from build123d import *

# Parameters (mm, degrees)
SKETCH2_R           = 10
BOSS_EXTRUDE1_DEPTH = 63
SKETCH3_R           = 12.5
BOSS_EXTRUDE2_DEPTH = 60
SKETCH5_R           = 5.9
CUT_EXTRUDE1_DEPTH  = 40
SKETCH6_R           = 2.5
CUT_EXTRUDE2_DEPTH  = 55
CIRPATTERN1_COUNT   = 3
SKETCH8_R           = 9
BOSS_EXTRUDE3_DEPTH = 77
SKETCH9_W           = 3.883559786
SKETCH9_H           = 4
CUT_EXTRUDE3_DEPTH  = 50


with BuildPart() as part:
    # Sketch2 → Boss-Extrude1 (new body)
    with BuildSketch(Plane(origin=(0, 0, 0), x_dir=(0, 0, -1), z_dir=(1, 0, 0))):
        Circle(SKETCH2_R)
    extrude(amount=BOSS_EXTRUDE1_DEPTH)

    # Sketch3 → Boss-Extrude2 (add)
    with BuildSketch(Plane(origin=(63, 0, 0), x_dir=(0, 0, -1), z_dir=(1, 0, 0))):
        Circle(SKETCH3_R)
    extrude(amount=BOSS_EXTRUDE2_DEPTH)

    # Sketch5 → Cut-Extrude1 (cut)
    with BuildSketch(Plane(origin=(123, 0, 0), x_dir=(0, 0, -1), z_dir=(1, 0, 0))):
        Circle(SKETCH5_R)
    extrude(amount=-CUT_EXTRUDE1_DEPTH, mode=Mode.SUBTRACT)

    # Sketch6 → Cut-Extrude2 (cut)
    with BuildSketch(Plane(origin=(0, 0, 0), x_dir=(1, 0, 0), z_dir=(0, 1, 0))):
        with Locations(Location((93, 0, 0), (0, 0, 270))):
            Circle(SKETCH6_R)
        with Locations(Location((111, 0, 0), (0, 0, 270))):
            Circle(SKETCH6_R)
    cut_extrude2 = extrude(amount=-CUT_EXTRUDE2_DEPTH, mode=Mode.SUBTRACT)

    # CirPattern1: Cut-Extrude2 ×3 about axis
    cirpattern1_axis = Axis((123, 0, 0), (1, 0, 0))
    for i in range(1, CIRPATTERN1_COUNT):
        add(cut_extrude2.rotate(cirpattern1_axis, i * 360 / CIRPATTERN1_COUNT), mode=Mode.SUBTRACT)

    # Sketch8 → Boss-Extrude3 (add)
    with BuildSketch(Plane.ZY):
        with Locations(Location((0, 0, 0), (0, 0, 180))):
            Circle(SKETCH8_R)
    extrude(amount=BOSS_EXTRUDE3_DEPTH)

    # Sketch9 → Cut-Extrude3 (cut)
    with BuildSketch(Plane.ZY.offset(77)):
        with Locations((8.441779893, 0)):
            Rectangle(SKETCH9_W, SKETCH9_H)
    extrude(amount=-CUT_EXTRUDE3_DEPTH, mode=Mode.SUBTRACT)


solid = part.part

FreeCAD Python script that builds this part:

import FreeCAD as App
import Part
import Sketcher

V = App.Vector
Q = App.Units.Quantity


def add_polygon(sketch, points):
    """Adds a closed chain of lines whose ends are joined by coincident constraints."""
    first, n = sketch.GeometryCount, len(points)
    for a, b in zip(points, points[1:] + points[:1]):
        sketch.addGeometry(Part.LineSegment(App.Vector(*a, 0), App.Vector(*b, 0)), False)
    for i in range(n):
        sketch.addConstraint(Sketcher.Constraint("Coincident", first + i, 2, first + (i + 1) % n, 1))

doc = App.newDocument("Part")
params = doc.addObject("Spreadsheet::Sheet", "Params")
for row, (alias, value) in enumerate([
    ("sketch1_diameter", "20 mm"),
    ("pad1_length", "63 mm"),
    ("sketch2_diameter", "25 mm"),
    ("pad2_length", "60 mm"),
    ("sketch3_diameter", "11.8 mm"),
    ("pocket1_length", "40 mm"),
    ("sketch4_diameter", "5 mm"),
    ("pocket2_length", "55 mm"),
    ("sketch5_diameter", "18 mm"),
    ("pad3_length", "77 mm"),
    ("sketch6_width", "4 mm"),
    ("pocket3_length", "50 mm"),
], start=1):
    params.set(f"A{row}", alias)
    params.set(f"B{row}", "=" + value)
    params.setAlias(f"B{row}", alias)

body = doc.addObject("PartDesign::Body", "Body")

sketch1 = doc.addObject("Sketcher::SketchObject", "Sketch")
body.addObject(sketch1)
sketch1.AttachmentSupport = (doc.YZ_Plane, [""])
sketch1.MapMode = "FlatFace"
sketch1.addGeometry(Part.Circle(V(0, 0, 0), V(0, 0, 1), 10), False)
sketch1.addConstraint(Sketcher.Constraint("Coincident", 0, 3, -1, 1))
sketch1.addConstraint(Sketcher.Constraint("Diameter", 0, Q("20 mm")))
sketch1.setExpression("Constraints[1]", "Params.sketch1_diameter")
pad1 = doc.addObject("PartDesign::Pad", "Pad")
body.addObject(pad1)
pad1.Profile = sketch1
pad1.setExpression("Length", "Params.pad1_length")

sketch2 = doc.addObject("Sketcher::SketchObject", "Sketch001")
body.addObject(sketch2)
sketch2.AttachmentSupport = (doc.YZ_Plane, [""])
sketch2.MapMode = "FlatFace"
sketch2.AttachmentOffset = App.Placement(V(0, 0, 63), App.Rotation())
sketch2.addGeometry(Part.Circle(V(0, 0, 0), V(0, 0, 1), 12.5), False)
sketch2.addConstraint(Sketcher.Constraint("Coincident", 0, 3, -1, 1))
sketch2.addConstraint(Sketcher.Constraint("Diameter", 0, Q("25 mm")))
sketch2.setExpression("Constraints[1]", "Params.sketch2_diameter")
pad2 = doc.addObject("PartDesign::Pad", "Pad001")
body.addObject(pad2)
pad2.Profile = sketch2
pad2.setExpression("Length", "Params.pad2_length")

sketch3 = doc.addObject("Sketcher::SketchObject", "Sketch002")
body.addObject(sketch3)
sketch3.AttachmentSupport = (doc.YZ_Plane, [""])
sketch3.MapMode = "FlatFace"
sketch3.AttachmentOffset = App.Placement(V(0, 0, 123), App.Rotation())
sketch3.addGeometry(Part.Circle(V(0, 0, 0), V(0, 0, 1), 5.9), False)
sketch3.addConstraint(Sketcher.Constraint("Coincident", 0, 3, -1, 1))
sketch3.addConstraint(Sketcher.Constraint("Diameter", 0, Q("11.8 mm")))
sketch3.setExpression("Constraints[1]", "Params.sketch3_diameter")
pocket1 = doc.addObject("PartDesign::Pocket", "Pocket")
body.addObject(pocket1)
pocket1.Profile = sketch3
pocket1.setExpression("Length", "Params.pocket1_length")

sketch4 = doc.addObject("Sketcher::SketchObject", "Sketch003")
body.addObject(sketch4)
sketch4.AttachmentSupport = (doc.XZ_Plane, [""])
sketch4.MapMode = "FlatFace"
sketch4.addGeometry(Part.Circle(V(93, 0, 0), V(0, 0, 1), 2.5), False)
sketch4.addGeometry(Part.Circle(V(111, 0, 0), V(0, 0, 1), 2.5), False)
sketch4.addConstraint(Sketcher.Constraint("Equal", 0, 1))
sketch4.addConstraint(Sketcher.Constraint("PointOnObject", 0, 3, -1))
sketch4.addConstraint(Sketcher.Constraint("PointOnObject", 1, 3, -1))
sketch4.addConstraint(Sketcher.Constraint("Diameter", 0, Q("5 mm")))
sketch4.addConstraint(Sketcher.Constraint("DistanceX", -1, 1, 0, 3, Q("93 mm")))
sketch4.addConstraint(Sketcher.Constraint("DistanceX", -1, 1, 1, 3, Q("111 mm")))
sketch4.setExpression("Constraints[3]", "Params.sketch4_diameter")
pocket2 = doc.addObject("PartDesign::Pocket", "Pocket001")
body.addObject(pocket2)
pocket2.Profile = sketch4
pocket2.setExpression("Length", "Params.pocket2_length")
pocket2.Reversed = True
doc.recompute()

polarpattern = doc.addObject("PartDesign::PolarPattern", "PolarPattern")
body.addObject(polarpattern)
polarpattern.Originals = [pocket2]
polarpattern.Axis = (doc.X_Axis, [""])
polarpattern.Angle = 360
polarpattern.Occurrences = 3
body.Tip = polarpattern

sketch5 = doc.addObject("Sketcher::SketchObject", "Sketch004")
body.addObject(sketch5)
sketch5.AttachmentSupport = (doc.YZ_Plane, [""])
sketch5.MapMode = "FlatFace"
sketch5.addGeometry(Part.Circle(V(0, 0, 0), V(0, 0, 1), 9), False)
sketch5.addConstraint(Sketcher.Constraint("Coincident", 0, 3, -1, 1))
sketch5.addConstraint(Sketcher.Constraint("Diameter", 0, Q("18 mm")))
sketch5.setExpression("Constraints[1]", "Params.sketch5_diameter")
pad3 = doc.addObject("PartDesign::Pad", "Pad002")
body.addObject(pad3)
pad3.Profile = sketch5
pad3.setExpression("Length", "Params.pad3_length")
pad3.Reversed = True

sketch6 = doc.addObject("Sketcher::SketchObject", "Sketch005")
body.addObject(sketch6)
sketch6.AttachmentSupport = (doc.YZ_Plane, [""])
sketch6.MapMode = "FlatFace"
sketch6.AttachmentOffset = App.Placement(V(0, 0, -77), App.Rotation())
add_polygon(sketch6, [(2, 6.5), (-2, 6.5), (-2, 10.38356), (2, 10.38356)])
sketch6.addConstraint(Sketcher.Constraint("Horizontal", 0))
sketch6.addConstraint(Sketcher.Constraint("Vertical", 1))
sketch6.addConstraint(Sketcher.Constraint("Horizontal", 2))
sketch6.addConstraint(Sketcher.Constraint("Vertical", 3))
sketch6.addConstraint(Sketcher.Constraint("DistanceX", 0, 2, 0, 1, Q("4 mm")))
sketch6.addConstraint(Sketcher.Constraint("DistanceX", 0, 2, -1, 1, Q("2 mm")))
sketch6.addConstraint(Sketcher.Constraint("DistanceY", -1, 1, 0, 2, Q("6.5 mm")))
sketch6.addConstraint(Sketcher.Constraint("DistanceY", 1, 1, 1, 2, Q("3.88356 mm")))
sketch6.setExpression("Constraints[8]", "Params.sketch6_width")
pocket3 = doc.addObject("PartDesign::Pocket", "Pocket002")
body.addObject(pocket3)
pocket3.Profile = sketch6
pocket3.setExpression("Length", "Params.pocket3_length")
pocket3.Reversed = True

doc.recompute()
